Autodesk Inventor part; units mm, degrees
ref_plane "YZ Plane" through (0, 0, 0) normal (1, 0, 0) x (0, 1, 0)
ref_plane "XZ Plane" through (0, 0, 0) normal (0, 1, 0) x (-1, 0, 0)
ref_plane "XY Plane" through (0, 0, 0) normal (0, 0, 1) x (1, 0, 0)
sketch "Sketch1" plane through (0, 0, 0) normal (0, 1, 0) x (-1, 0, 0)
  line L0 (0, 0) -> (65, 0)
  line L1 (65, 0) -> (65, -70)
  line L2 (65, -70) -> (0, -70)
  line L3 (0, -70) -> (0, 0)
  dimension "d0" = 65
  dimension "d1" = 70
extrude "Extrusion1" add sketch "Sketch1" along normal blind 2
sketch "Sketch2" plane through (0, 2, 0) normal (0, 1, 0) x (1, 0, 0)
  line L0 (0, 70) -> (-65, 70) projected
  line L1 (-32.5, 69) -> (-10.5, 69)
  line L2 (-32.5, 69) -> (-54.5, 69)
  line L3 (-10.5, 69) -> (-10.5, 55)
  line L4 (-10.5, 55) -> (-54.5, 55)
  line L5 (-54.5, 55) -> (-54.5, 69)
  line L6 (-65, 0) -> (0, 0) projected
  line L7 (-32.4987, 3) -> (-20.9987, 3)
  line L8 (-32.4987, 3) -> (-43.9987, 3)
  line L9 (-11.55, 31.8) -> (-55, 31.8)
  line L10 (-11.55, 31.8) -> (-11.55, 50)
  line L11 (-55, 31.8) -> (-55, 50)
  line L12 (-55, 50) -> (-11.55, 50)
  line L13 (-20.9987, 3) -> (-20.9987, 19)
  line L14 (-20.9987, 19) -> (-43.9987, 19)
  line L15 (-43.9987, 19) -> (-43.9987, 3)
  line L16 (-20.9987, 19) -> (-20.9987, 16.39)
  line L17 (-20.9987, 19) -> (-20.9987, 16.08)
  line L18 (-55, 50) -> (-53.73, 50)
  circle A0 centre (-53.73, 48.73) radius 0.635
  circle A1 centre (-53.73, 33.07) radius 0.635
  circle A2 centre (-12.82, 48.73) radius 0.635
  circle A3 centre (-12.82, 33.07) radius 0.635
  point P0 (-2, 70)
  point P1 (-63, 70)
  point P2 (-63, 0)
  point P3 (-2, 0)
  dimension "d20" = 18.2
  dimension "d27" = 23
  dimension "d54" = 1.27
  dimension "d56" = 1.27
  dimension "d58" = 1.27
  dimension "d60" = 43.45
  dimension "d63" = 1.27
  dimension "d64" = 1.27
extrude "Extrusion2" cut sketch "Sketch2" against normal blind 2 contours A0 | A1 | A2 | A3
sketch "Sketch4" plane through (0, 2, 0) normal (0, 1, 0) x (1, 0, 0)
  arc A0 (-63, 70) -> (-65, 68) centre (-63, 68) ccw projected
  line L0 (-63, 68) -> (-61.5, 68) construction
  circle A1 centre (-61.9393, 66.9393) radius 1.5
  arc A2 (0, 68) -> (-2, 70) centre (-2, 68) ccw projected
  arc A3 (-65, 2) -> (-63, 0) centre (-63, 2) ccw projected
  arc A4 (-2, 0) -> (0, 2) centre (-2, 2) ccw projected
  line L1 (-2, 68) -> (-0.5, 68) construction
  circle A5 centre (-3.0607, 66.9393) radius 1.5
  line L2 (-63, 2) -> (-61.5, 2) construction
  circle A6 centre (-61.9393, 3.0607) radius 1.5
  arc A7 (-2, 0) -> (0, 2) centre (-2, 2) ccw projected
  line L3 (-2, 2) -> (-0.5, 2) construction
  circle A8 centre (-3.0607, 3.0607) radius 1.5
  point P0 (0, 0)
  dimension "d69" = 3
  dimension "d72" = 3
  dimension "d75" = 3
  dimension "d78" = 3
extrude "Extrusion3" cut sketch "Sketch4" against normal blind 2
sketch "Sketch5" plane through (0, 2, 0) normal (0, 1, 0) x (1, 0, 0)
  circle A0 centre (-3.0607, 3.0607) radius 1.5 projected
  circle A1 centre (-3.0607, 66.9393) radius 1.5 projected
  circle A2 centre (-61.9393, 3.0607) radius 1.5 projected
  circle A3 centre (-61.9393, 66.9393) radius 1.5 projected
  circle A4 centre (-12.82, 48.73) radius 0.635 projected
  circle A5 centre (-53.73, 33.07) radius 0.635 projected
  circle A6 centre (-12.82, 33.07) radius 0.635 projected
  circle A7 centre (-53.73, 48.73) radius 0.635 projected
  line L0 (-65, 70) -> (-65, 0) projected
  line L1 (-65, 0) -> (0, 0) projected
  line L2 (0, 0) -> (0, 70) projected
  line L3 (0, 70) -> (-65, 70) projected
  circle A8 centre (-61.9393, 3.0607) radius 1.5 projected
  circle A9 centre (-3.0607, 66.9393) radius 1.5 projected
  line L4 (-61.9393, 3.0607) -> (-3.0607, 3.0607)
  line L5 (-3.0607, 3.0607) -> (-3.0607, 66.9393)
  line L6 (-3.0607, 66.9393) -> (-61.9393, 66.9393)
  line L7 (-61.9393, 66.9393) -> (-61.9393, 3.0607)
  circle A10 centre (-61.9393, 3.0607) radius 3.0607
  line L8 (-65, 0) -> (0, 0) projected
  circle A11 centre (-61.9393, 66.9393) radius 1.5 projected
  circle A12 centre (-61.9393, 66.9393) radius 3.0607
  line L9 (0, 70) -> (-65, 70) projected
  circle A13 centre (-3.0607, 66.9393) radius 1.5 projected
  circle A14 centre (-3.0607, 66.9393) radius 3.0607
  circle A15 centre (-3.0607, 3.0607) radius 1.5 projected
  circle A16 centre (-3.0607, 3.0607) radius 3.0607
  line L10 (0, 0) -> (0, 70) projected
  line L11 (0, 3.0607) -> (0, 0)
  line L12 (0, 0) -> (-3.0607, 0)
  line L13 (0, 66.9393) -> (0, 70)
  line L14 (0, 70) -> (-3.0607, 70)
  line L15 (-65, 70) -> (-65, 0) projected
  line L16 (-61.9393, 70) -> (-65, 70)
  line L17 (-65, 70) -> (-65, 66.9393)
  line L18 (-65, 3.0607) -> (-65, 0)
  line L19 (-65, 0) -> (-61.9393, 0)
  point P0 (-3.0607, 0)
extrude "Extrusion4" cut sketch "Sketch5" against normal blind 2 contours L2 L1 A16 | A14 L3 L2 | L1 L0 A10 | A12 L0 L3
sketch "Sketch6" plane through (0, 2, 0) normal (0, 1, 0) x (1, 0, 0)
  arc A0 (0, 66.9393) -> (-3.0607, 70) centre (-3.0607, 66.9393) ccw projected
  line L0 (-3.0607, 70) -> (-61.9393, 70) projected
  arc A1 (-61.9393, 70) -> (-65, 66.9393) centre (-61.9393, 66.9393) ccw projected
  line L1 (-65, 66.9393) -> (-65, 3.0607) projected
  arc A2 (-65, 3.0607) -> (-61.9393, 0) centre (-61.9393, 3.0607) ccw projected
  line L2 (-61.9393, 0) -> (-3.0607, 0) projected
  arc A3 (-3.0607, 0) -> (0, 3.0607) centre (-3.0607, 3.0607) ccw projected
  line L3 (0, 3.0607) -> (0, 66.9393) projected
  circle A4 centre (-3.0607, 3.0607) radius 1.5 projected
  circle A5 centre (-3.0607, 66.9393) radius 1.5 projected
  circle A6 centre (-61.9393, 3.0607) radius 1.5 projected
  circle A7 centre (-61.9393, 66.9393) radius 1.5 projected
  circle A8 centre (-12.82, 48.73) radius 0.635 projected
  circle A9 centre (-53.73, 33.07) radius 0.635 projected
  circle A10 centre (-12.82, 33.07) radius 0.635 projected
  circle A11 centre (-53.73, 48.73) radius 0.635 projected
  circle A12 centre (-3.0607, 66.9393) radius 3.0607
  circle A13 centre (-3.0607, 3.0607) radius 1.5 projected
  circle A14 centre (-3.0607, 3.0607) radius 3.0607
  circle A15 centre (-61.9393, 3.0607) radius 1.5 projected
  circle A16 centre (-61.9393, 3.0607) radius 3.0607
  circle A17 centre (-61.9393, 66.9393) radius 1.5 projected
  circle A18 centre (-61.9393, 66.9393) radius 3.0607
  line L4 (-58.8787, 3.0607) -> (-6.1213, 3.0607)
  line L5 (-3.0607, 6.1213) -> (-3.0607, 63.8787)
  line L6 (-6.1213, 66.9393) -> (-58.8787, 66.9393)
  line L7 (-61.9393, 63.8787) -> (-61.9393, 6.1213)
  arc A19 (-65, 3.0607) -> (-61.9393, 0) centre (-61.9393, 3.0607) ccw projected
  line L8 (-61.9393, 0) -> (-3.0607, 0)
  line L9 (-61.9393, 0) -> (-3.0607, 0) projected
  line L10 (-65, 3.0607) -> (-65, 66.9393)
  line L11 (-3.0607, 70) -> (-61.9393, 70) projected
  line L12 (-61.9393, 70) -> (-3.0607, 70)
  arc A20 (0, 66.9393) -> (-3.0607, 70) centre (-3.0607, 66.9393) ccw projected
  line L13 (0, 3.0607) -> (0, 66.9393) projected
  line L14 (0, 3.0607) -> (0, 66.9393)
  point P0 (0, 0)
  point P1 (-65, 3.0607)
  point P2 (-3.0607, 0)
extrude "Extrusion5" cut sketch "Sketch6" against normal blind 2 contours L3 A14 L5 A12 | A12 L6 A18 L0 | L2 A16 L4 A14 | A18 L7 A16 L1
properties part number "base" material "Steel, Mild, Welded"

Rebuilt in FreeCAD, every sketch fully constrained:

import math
import FreeCAD as App
import Part
import Sketcher
Q = App.Units.Quantity


def add_polygon(sketch, points):
    """Adds a closed chain of lines whose ends are joined by coincident constraints."""
    first, n = sketch.GeometryCount, len(points)
    for a, b in zip(points, points[1:] + points[:1]):
        sketch.addGeometry(Part.LineSegment(App.Vector(*a, 0), App.Vector(*b, 0)), False)
    for i in range(n):
        sketch.addConstraint(Sketcher.Constraint("Coincident", first + i, 2, first + (i + 1) % n, 1))

doc = App.newDocument("Part")
params = doc.addObject("Spreadsheet::Sheet", "Params")
for row, (alias, value) in enumerate([
    ("sketch1_width", "65 mm"),
    ("sketch1_height", "70 mm"),
    ("pad1_length", "2 mm"),
    ("sketch2_diameter", "1.27 mm"),
    ("pocket1_length", "2 mm"),
    ("sketch3_diameter", "3 mm"),
    ("pocket2_length", "2 mm"),
    ("pocket3_length", "2 mm"),
    ("pocket4_length", "2 mm"),
], start=1):
    params.set(f"A{row}", alias)
    params.set(f"B{row}", "=" + value)
    params.setAlias(f"B{row}", alias)

body = doc.addObject("PartDesign::Body", "Body")

sketch1 = body.newObject("Sketcher::SketchObject", "Sketch")
sketch1.AttachmentSupport = (doc.getObject("XZ_Plane"), [""])
sketch1.MapMode = "FlatFace"
add_polygon(sketch1, [(-65, 0), (0, 0), (0, -70), (-65, -70)])
sketch1.addConstraint([
    Sketcher.Constraint("Horizontal", 0),
    Sketcher.Constraint("Vertical", 1),
    Sketcher.Constraint("Horizontal", 2),
    Sketcher.Constraint("Vertical", 3),
    Sketcher.Constraint("Coincident", 0, 2, -1, 1),
    Sketcher.Constraint("DistanceX", 0, 1, 0, 2, Q("65 mm")),
    Sketcher.Constraint("DistanceY", 1, 2, 1, 1, Q("70 mm")),
])
sketch1.setExpression("Constraints[9]", "Params.sketch1_width")
sketch1.setExpression("Constraints[10]", "Params.sketch1_height")
pad1 = body.newObject("PartDesign::Pad", "Pad")
pad1.Profile = sketch1
pad1.setExpression("Length", "Params.pad1_length")
pad1.Reversed = True

sketch2 = body.newObject("Sketcher::SketchObject", "Sketch001")
sketch2.AttachmentSupport = (doc.getObject("XZ_Plane"), [""])
sketch2.MapMode = "FlatFace"
sketch2.AttachmentOffset = App.Placement(App.Vector(0, 0, -2), App.Rotation())
sketch2.addGeometry([
    Part.Circle(App.Vector(-53.73, -48.73, 0), App.Vector(0, 0, 1), 0.635),
    Part.Circle(App.Vector(-53.73, -33.07, 0), App.Vector(0, 0, 1), 0.635),
    Part.Circle(App.Vector(-12.82, -48.73, 0), App.Vector(0, 0, 1), 0.635),
    Part.Circle(App.Vector(-12.82, -33.07, 0), App.Vector(0, 0, 1), 0.635),
], False)
sketch2.addConstraint([
    Sketcher.Constraint("Equal", 0, 1),
    Sketcher.Constraint("Equal", 1, 2),
    Sketcher.Constraint("Equal", 2, 3),
    Sketcher.Constraint("Horizontal", 0, 3, 2, 3),
    Sketcher.Constraint("Horizontal", 1, 3, 3, 3),
    Sketcher.Constraint("Vertical", 0, 3, 1, 3),
    Sketcher.Constraint("Vertical", 2, 3, 3, 3),
    Sketcher.Constraint("Diameter", 0, Q("1.27 mm")),
    Sketcher.Constraint("DistanceX", 0, 3, -1, 1, Q("53.73 mm")),
    Sketcher.Constraint("DistanceY", 0, 3, -1, 1, Q("48.73 mm")),
    Sketcher.Constraint("DistanceY", 1, 3, -1, 1, Q("33.07 mm")),
    Sketcher.Constraint("DistanceX", 2, 3, -1, 1, Q("12.82 mm")),
])
sketch2.setExpression("Constraints[7]", "Params.sketch2_diameter")
pocket1 = body.newObject("PartDesign::Pocket", "Pocket")
pocket1.Profile = sketch2
pocket1.setExpression("Length", "Params.pocket1_length")
pocket1.Reversed = True

sketch3 = body.newObject("Sketcher::SketchObject", "Sketch002")
sketch3.AttachmentSupport = (doc.getObject("XZ_Plane"), [""])
sketch3.MapMode = "FlatFace"
sketch3.AttachmentOffset = App.Placement(App.Vector(0, 0, -2), App.Rotation())
sketch3.addGeometry([
    Part.Circle(App.Vector(-61.9393, -66.9393, 0), App.Vector(0, 0, 1), 1.5),
    Part.Circle(App.Vector(-3.0607, -66.9393, 0), App.Vector(0, 0, 1), 1.5),
    Part.Circle(App.Vector(-61.9393, -3.0607, 0), App.Vector(0, 0, 1), 1.5),
    Part.Circle(App.Vector(-3.0607, -3.0607, 0), App.Vector(0, 0, 1), 1.5),
], False)
sketch3.addConstraint([
    Sketcher.Constraint("Equal", 0, 1),
    Sketcher.Constraint("Equal", 1, 2),
    Sketcher.Constraint("Equal", 2, 3),
    Sketcher.Constraint("Horizontal", 0, 3, 1, 3),
    Sketcher.Constraint("Horizontal", 2, 3, 3, 3),
    Sketcher.Constraint("Vertical", 0, 3, 2, 3),
    Sketcher.Constraint("Vertical", 1, 3, 3, 3),
    Sketcher.Constraint("Diameter", 0, Q("3 mm")),
    Sketcher.Constraint("DistanceX", 0, 3, -1, 1, Q("61.9393 mm")),
    Sketcher.Constraint("DistanceY", 0, 3, -1, 1, Q("66.9393 mm")),
    Sketcher.Constraint("DistanceX", 1, 3, -1, 1, Q("3.0607 mm")),
    Sketcher.Constraint("DistanceY", 2, 3, -1, 1, Q("3.0607 mm")),
])
sketch3.setExpression("Constraints[7]", "Params.sketch3_diameter")
pocket2 = body.newObject("PartDesign::Pocket", "Pocket001")
pocket2.Profile = sketch3
pocket2.setExpression("Length", "Params.pocket2_length")
pocket2.Reversed = True

sketch4 = body.newObject("Sketcher::SketchObject", "Sketch003")
sketch4.AttachmentSupport = (doc.getObject("XZ_Plane"), [""])
sketch4.MapMode = "FlatFace"
sketch4.AttachmentOffset = App.Placement(App.Vector(0, 0, -2), App.Rotation())
sketch4.addGeometry([
    Part.LineSegment(App.Vector(0, 0, 0), App.Vector(0, -3.0607, 0)),
    Part.ArcOfCircle(Part.Circle(App.Vector(-3.0607, -3.0607, 0), App.Vector(0, 0, 1), 3.0607), math.radians(0), math.radians(90)),
    Part.LineSegment(App.Vector(-3.0607, 0, 0), App.Vector(0, 0, 0)),
    Part.ArcOfCircle(Part.Circle(App.Vector(-3.0607, -66.9393, 0), App.Vector(0, 0, 1), 3.0607), math.radians(-90), math.radians(0)),
    Part.LineSegment(App.Vector(0, -66.9393, 0), App.Vector(0, -70, 0)),
    Part.LineSegment(App.Vector(0, -70, 0), App.Vector(-3.0607, -70, 0)),
    Part.LineSegment(App.Vector(-65, 0, 0), App.Vector(-61.9393, 0, 0)),
    Part.ArcOfCircle(Part.Circle(App.Vector(-61.9393, -3.0607, 0), App.Vector(0, 0, 1), 3.0607), math.radians(90), math.radians(180)),
    Part.LineSegment(App.Vector(-65, -3.0607, 0), App.Vector(-65, 0, 0)),
    Part.ArcOfCircle(Part.Circle(App.Vector(-61.9393, -66.9393, 0), App.Vector(0, 0, 1), 3.0607), math.radians(180), math.radians(270)),
    Part.LineSegment(App.Vector(-61.9393, -70, 0), App.Vector(-65, -70, 0)),
    Part.LineSegment(App.Vector(-65, -70, 0), App.Vector(-65, -66.9393, 0)),
], False)
sketch4.addConstraint([
    Sketcher.Constraint("Tangent", 0, 2, 1, 1),
    Sketcher.Constraint("Tangent", 1, 2, 2, 1),
    Sketcher.Constraint("Coincident", 2, 2, 0, 1),
    Sketcher.Constraint("Tangent", 3, 2, 4, 1),
    Sketcher.Constraint("Coincident", 4, 2, 5, 1),
    Sketcher.Constraint("Tangent", 5, 2, 3, 1),
    Sketcher.Constraint("Tangent", 6, 2, 7, 1),
    Sketcher.Constraint("Tangent", 7, 2, 8, 1),
    Sketcher.Constraint("Coincident", 8, 2, 6, 1),
    Sketcher.Constraint("Tangent", 9, 2, 10, 1),
    Sketcher.Constraint("Coincident", 10, 2, 11, 1),
    Sketcher.Constraint("Tangent", 11, 2, 9, 1),
    Sketcher.Constraint("Vertical", 0),
    Sketcher.Constraint("Horizontal", 2),
    Sketcher.Constraint("Vertical", 4),
    Sketcher.Constraint("Horizontal", 5),
    Sketcher.Constraint("Horizontal", 6),
    Sketcher.Constraint("Vertical", 8),
    Sketcher.Constraint("Horizontal", 10),
    Sketcher.Constraint("Vertical", 11),
    Sketcher.Constraint("Coincident", 2, 2, -1, 1),
    Sketcher.Constraint("Equal", 1, 3),
    Sketcher.Constraint("Equal", 3, 7),
    Sketcher.Constraint("Equal", 7, 9),
    Sketcher.Constraint("PointOnObject", 3, 2, -2),
    Sketcher.Constraint("PointOnObject", 6, 2, -1),
    Sketcher.Constraint("Horizontal", 3, 3, 9, 3),
    Sketcher.Constraint("Vertical", 7, 3, 9, 3),
    Sketcher.Constraint("DistanceY", 4, 2, -1, 1, Q("70 mm")),
    Sketcher.Constraint("DistanceX", 7, 2, -1, 1, Q("65 mm")),
    Sketcher.Constraint("Radius", 1, Q("3.0607 mm")),
])
pocket3 = body.newObject("PartDesign::Pocket", "Pocket002")
pocket3.Profile = sketch4
pocket3.setExpression("Length", "Params.pocket3_length")
pocket3.Reversed = True

sketch5 = body.newObject("Sketcher::SketchObject", "Sketch004")
sketch5.AttachmentSupport = (doc.getObject("XZ_Plane"), [""])
sketch5.MapMode = "FlatFace"
sketch5.AttachmentOffset = App.Placement(App.Vector(0, 0, -2), App.Rotation())
sketch5.addGeometry([
    Part.LineSegment(App.Vector(0, -3.0607, 0), App.Vector(0, -66.9393, 0)),
    Part.ArcOfCircle(Part.Circle(App.Vector(-3.0607, -66.9393, 0), App.Vector(0, 0, 1), 3.0607), math.radians(0), math.radians(90)),
    Part.LineSegment(App.Vector(-3.0607, -63.8787, 0), App.Vector(-3.0607, -6.1213, 0)),
    Part.ArcOfCircle(Part.Circle(App.Vector(-3.0607, -3.0607, 0), App.Vector(0, 0, 1), 3.0607), math.radians(-90), math.radians(0)),
    Part.ArcOfCircle(Part.Circle(App.Vector(-3.0607, -66.9393, 0), App.Vector(0, 0, 1), 3.0607), math.radians(180), math.radians(270)),
    Part.LineSegment(App.Vector(-3.0607, -70, 0), App.Vector(-61.9393, -70, 0)),
    Part.ArcOfCircle(Part.Circle(App.Vector(-61.9393, -66.9393, 0), App.Vector(0, 0, 1), 3.0607), math.radians(-90), math.radians(0)),
    Part.LineSegment(App.Vector(-58.8787, -66.9393, 0), App.Vector(-6.1213, -66.9393, 0)),
    Part.LineSegment(App.Vector(-61.9393, 0, 0), App.Vector(-3.0607, 0, 0)),
    Part.ArcOfCircle(Part.Circle(App.Vector(-3.0607, -3.0607, 0), App.Vector(0, 0, 1), 3.0607), math.radians(90), math.radians(180)),
    Part.LineSegment(App.Vector(-6.1213, -3.0607, 0), App.Vector(-58.8787, -3.0607, 0)),
    Part.ArcOfCircle(Part.Circle(App.Vector(-61.9393, -3.0607, 0), App.Vector(0, 0, 1), 3.0607), math.radians(0), math.radians(90)),
    Part.ArcOfCircle(Part.Circle(App.Vector(-61.9393, -66.9393, 0), App.Vector(0, 0, 1), 3.0607), math.radians(90), math.radians(180)),
    Part.LineSegment(App.Vector(-65, -66.9393, 0), App.Vector(-65, -3.0607, 0)),
    Part.ArcOfCircle(Part.Circle(App.Vector(-61.9393, -3.0607, 0), App.Vector(0, 0, 1), 3.0607), math.radians(180), math.radians(270)),
    Part.LineSegment(App.Vector(-61.9393, -6.1213, 0), App.Vector(-61.9393, -63.8787, 0)),
], False)
sketch5.addConstraint([
    Sketcher.Constraint("Tangent", 0, 2, 1, 1),
    Sketcher.Constraint("Coincident", 1, 2, 2, 1),
    Sketcher.Constraint("Coincident", 2, 2, 3, 1),
    Sketcher.Constraint("Tangent", 3, 2, 0, 1),
    Sketcher.Constraint("Tangent", 4, 2, 5, 1),
    Sketcher.Constraint("Tangent", 5, 2, 6, 1),
    Sketcher.Constraint("Coincident", 6, 2, 7, 1),
    Sketcher.Constraint("Coincident", 7, 2, 4, 1),
    Sketcher.Constraint("Tangent", 8, 2, 9, 1),
    Sketcher.Constraint("Coincident", 9, 2, 10, 1),
    Sketcher.Constraint("Coincident", 10, 2, 11, 1),
    Sketcher.Constraint("Tangent", 11, 2, 8, 1),
    Sketcher.Constraint("Tangent", 12, 2, 13, 1),
    Sketcher.Constraint("Tangent", 13, 2, 14, 1),
    Sketcher.Constraint("Coincident", 14, 2, 15, 1),
    Sketcher.Constraint("Coincident", 15, 2, 12, 1),
    Sketcher.Constraint("Vertical", 0),
    Sketcher.Constraint("Vertical", 2),
    Sketcher.Constraint("Horizontal", 5),
    Sketcher.Constraint("Horizontal", 7),
    Sketcher.Constraint("Horizontal", 8),
    Sketcher.Constraint("Horizontal", 10),
    Sketcher.Constraint("Vertical", 13),
    Sketcher.Constraint("Vertical", 15),
    Sketcher.Constraint("Coincident", 4, 3, 1, 3),
    Sketcher.Constraint("Coincident", 9, 3, 3, 3),
    Sketcher.Constraint("Coincident", 12, 3, 6, 3),
    Sketcher.Constraint("Coincident", 14, 3, 11, 3),
    Sketcher.Constraint("Equal", 1, 3),
    Sketcher.Constraint("Equal", 3, 4),
    Sketcher.Constraint("Equal", 4, 6),
    Sketcher.Constraint("Equal", 6, 9),
    Sketcher.Constraint("Equal", 9, 11),
    Sketcher.Constraint("Equal", 11, 12),
    Sketcher.Constraint("Equal", 12, 14),
    Sketcher.Constraint("PointOnObject", 0, 2, -2),
    Sketcher.Constraint("PointOnObject", 8, 2, -1),
    Sketcher.Constraint("Horizontal", 0, 2, 6, 2),
    Sketcher.Constraint("Horizontal", 3, 2, 9, 2),
    Sketcher.Constraint("Vertical", 9, 3, 1, 2),
    Sketcher.Constraint("Vertical", 11, 2, 14, 2),
    Sketcher.Constraint("DistanceY", 4, 2, -1, 1, Q("70 mm")),
    Sketcher.Constraint("DistanceX", 12, 2, -1, 1, Q("65 mm")),
    Sketcher.Constraint("Radius", 1, Q("3.0607 mm")),
])
pocket4 = body.newObject("PartDesign::Pocket", "Pocket003")
pocket4.Profile = sketch5
pocket4.setExpression("Length", "Params.pocket4_length")
pocket4.Reversed = True

doc.recompute()
